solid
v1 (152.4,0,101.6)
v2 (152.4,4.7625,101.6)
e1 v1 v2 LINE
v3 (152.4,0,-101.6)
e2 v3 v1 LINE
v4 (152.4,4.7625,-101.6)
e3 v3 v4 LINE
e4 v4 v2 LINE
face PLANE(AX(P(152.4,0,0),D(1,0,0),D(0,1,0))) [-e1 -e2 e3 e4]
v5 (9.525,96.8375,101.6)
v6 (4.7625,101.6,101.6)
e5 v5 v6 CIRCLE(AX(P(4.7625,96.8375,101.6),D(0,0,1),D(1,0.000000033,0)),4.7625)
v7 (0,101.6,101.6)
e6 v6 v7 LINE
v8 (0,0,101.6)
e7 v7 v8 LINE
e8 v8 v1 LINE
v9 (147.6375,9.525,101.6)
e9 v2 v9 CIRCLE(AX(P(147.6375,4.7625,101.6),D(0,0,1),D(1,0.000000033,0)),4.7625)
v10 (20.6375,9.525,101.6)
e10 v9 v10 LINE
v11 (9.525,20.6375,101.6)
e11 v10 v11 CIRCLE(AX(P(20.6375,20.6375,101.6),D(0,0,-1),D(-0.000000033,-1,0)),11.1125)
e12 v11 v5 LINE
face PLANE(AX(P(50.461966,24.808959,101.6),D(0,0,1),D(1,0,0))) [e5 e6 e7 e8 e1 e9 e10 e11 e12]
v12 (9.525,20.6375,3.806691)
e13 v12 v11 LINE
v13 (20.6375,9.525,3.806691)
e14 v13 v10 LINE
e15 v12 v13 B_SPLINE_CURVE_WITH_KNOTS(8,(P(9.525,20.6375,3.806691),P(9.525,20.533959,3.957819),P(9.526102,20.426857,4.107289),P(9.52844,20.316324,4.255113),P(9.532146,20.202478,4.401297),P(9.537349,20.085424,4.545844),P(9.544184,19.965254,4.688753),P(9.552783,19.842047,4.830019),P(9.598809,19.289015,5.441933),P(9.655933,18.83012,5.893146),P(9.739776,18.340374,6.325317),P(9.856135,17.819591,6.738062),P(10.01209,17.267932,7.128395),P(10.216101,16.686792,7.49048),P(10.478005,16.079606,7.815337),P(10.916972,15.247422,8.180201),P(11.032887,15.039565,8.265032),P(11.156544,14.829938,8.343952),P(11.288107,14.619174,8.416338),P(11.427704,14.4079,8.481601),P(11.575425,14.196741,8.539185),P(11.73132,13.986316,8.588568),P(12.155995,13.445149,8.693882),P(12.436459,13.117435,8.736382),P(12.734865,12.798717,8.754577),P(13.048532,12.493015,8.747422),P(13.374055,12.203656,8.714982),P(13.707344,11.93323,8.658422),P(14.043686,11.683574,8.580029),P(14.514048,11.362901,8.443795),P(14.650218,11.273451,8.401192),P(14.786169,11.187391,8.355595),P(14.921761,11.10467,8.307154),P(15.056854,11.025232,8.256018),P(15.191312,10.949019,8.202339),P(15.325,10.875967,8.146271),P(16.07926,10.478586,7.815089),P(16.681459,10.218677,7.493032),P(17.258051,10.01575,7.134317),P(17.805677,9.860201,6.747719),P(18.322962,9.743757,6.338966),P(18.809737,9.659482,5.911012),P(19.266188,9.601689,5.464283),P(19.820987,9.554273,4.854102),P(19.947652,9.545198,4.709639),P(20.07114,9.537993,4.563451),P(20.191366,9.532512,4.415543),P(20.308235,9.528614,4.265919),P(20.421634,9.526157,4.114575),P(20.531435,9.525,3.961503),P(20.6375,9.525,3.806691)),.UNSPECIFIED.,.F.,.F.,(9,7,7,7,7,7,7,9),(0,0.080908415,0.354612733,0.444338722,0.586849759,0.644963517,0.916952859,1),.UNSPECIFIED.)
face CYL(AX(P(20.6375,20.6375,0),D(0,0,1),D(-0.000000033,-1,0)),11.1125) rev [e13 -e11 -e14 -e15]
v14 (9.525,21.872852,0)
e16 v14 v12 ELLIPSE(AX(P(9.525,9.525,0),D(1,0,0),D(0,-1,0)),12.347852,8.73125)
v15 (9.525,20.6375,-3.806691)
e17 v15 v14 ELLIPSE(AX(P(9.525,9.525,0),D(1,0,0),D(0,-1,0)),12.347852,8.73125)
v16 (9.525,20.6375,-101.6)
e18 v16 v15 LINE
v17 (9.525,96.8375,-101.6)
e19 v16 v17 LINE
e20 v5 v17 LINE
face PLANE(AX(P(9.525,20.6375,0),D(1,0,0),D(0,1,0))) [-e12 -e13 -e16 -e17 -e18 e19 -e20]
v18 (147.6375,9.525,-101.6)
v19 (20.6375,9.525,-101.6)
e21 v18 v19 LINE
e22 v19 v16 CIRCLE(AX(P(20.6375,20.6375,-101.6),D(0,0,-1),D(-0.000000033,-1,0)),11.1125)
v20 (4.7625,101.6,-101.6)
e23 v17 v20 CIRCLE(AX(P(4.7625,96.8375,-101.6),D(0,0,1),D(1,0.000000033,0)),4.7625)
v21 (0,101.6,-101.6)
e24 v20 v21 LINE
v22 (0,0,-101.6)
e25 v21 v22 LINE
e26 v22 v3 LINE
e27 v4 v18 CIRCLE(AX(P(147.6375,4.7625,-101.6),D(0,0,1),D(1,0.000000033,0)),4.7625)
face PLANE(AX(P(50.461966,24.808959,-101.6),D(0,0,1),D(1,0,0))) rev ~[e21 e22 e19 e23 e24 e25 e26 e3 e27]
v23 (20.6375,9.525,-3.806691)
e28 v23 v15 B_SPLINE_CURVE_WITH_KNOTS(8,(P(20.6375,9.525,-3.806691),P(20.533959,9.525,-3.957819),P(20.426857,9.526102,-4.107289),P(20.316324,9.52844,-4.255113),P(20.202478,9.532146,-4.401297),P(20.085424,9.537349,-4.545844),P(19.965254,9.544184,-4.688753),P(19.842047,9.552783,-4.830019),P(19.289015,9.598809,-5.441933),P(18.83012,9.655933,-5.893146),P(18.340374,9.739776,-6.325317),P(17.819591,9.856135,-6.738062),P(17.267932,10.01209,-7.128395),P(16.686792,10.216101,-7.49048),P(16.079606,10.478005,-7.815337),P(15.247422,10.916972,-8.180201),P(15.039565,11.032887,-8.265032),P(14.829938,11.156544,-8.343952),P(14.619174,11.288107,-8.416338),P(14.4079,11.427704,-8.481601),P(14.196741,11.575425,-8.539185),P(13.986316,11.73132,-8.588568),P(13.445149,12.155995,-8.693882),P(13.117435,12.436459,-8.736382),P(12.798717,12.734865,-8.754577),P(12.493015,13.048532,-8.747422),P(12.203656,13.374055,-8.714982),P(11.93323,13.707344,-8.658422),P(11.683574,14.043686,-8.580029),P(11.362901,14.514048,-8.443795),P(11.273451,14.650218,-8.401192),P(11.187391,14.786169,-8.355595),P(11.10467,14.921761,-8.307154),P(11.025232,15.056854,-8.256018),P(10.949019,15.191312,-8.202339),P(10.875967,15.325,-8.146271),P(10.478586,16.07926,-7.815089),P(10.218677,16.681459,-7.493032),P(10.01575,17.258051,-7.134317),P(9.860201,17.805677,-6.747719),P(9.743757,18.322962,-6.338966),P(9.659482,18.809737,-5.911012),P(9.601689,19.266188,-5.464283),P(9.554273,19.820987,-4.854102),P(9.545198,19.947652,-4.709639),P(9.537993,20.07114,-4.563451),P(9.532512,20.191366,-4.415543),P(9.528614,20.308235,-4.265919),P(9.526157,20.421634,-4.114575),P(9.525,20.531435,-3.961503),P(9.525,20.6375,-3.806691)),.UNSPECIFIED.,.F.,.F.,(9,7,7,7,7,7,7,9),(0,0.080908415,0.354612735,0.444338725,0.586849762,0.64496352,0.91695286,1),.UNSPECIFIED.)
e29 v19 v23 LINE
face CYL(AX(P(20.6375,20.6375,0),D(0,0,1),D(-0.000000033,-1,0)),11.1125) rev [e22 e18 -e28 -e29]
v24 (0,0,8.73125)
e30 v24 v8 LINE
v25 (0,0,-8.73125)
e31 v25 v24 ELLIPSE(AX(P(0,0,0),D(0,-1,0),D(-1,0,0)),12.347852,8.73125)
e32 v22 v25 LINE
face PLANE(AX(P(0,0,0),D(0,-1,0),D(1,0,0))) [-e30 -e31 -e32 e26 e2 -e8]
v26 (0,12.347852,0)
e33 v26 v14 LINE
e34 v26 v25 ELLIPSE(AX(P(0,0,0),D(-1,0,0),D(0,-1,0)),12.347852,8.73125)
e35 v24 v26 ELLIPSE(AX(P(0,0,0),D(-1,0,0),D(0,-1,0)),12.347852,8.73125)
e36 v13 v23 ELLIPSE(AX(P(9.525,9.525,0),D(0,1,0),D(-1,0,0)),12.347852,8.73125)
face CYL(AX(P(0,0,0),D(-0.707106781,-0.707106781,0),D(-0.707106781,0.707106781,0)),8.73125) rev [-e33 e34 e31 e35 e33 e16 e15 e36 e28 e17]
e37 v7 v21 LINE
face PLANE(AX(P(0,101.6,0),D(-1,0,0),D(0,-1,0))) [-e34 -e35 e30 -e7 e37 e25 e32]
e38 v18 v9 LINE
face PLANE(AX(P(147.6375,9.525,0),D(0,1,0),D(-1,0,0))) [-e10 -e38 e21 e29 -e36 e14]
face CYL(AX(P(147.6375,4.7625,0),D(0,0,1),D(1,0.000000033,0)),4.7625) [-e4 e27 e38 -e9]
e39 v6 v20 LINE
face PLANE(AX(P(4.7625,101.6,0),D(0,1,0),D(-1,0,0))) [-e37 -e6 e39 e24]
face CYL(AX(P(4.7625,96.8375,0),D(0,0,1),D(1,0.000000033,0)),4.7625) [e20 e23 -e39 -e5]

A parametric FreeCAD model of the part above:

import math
import FreeCAD as App
import Part
import Sketcher
Q = App.Units.Quantity

doc = App.newDocument("Part")
params = doc.addObject("Spreadsheet::Sheet", "Params")
for row, (alias, value) in enumerate([
    ("sketch1_width", "6 in"),
    ("sketch1_width2", "5 in"),
    ("sketch1_height", "4 in"),
    ("sketch1_radius", "0.1875 in"),
    ("sketch1_radius2", "0.4375 in"),
    ("pad1_length", "8 in"),
    ("sketch2_diameter", "0.6875 in"),
    ("pocket1_length", "1 in"),
], start=1):
    params.set(f"A{row}", alias)
    params.set(f"B{row}", "=" + value)
    params.setAlias(f"B{row}", alias)

body = doc.addObject("PartDesign::Body", "Body")

# Sketch on XY plane
sketch1 = body.newObject("Sketcher::SketchObject", "Sketch")
sketch1.AttachmentSupport = (doc.getObject("XY_Plane"), [""])
sketch1.MapMode = "FlatFace"
sketch1.addGeometry(Part.LineSegment(App.Vector(0, 101.6, 0), App.Vector(0, 0, 0)), False)
sketch1.addGeometry(Part.LineSegment(App.Vector(0, 0, 0), App.Vector(152.4, 0, 0)), False)
sketch1.addGeometry(Part.LineSegment(App.Vector(152.4, 0, 0), App.Vector(152.4, 4.7625, 0)), False)
sketch1.addGeometry(Part.ArcOfCircle(Part.Circle(App.Vector(147.6375, 4.7625, 0), App.Vector(0, 0, 1), 4.7625), math.radians(0.000002), math.radians(89.999998)), False)
sketch1.addGeometry(Part.LineSegment(App.Vector(147.6375, 9.525, 0), App.Vector(20.6375, 9.525, 0)), False)
sketch1.addGeometry(Part.ArcOfCircle(Part.Circle(App.Vector(20.6375, 20.6375, 0), App.Vector(0, 0, 1), 11.1125), math.radians(-179.999998), math.radians(-90.000002)), False)
sketch1.addGeometry(Part.LineSegment(App.Vector(9.525, 20.6375, 0), App.Vector(9.525, 96.8375, 0)), False)
sketch1.addGeometry(Part.ArcOfCircle(Part.Circle(App.Vector(4.7625, 96.8375, 0), App.Vector(0, 0, 1), 4.7625), math.radians(0.000002), math.radians(89.999998)), False)
sketch1.addGeometry(Part.LineSegment(App.Vector(4.7625, 101.6, 0), App.Vector(0, 101.6, 0)), False)
sketch1.addConstraint(Sketcher.Constraint("Coincident", 0, 2, 1, 1))
sketch1.addConstraint(Sketcher.Constraint("Coincident", 1, 2, 2, 1))
sketch1.addConstraint(Sketcher.Constraint("Tangent", 2, 2, 3, 1))
sketch1.addConstraint(Sketcher.Constraint("Tangent", 3, 2, 4, 1))
sketch1.addConstraint(Sketcher.Constraint("Tangent", 4, 2, 5, 2))
sketch1.addConstraint(Sketcher.Constraint("Tangent", 5, 1, 6, 1))
sketch1.addConstraint(Sketcher.Constraint("Tangent", 6, 2, 7, 1))
sketch1.addConstraint(Sketcher.Constraint("Tangent", 7, 2, 8, 1))
sketch1.addConstraint(Sketcher.Constraint("Coincident", 8, 2, 0, 1))
sketch1.addConstraint(Sketcher.Constraint("Vertical", 0))
sketch1.addConstraint(Sketcher.Constraint("Horizontal", 1))
sketch1.addConstraint(Sketcher.Constraint("Vertical", 2))
sketch1.addConstraint(Sketcher.Constraint("Horizontal", 4))
sketch1.addConstraint(Sketcher.Constraint("Vertical", 6))
sketch1.addConstraint(Sketcher.Constraint("Horizontal", 8))
sketch1.addConstraint(Sketcher.Constraint("Coincident", 0, 2, -1, 1))
sketch1.addConstraint(Sketcher.Constraint("Equal", 3, 7))
sketch1.addConstraint(Sketcher.Constraint("Equal", 8, 2))
sketch1.addConstraint(Sketcher.Constraint("DistanceX", 1, 1, 1, 2, Q("6 in")))
sketch1.addConstraint(Sketcher.Constraint("DistanceX", 4, 2, 4, 1, Q("5 in")))
sketch1.addConstraint(Sketcher.Constraint("DistanceY", 0, 2, 0, 1, Q("4 in")))
sketch1.addConstraint(Sketcher.Constraint("Radius", 3, Q("0.1875 in")))
sketch1.addConstraint(Sketcher.Constraint("Radius", 5, Q("0.4375 in")))
sketch1.setExpression("Constraints[18]", "Params.sketch1_width")
sketch1.setExpression("Constraints[19]", "Params.sketch1_width2")
sketch1.setExpression("Constraints[20]", "Params.sketch1_height")
sketch1.setExpression("Constraints[21]", "Params.sketch1_radius")
sketch1.setExpression("Constraints[22]", "Params.sketch1_radius2")
pad1 = body.newObject("PartDesign::Pad", "Pad")
pad1.Profile = sketch1
pad1.setExpression("Length", "Params.pad1_length")
pad1.Midplane = True

# Sketch on an angled plane
sketch2 = body.newObject("Sketcher::SketchObject", "Sketch001")
sketch2.Placement = App.Placement(App.Vector(0, 0, 0), App.Rotation(App.Vector(-0.707106781, 0.707106781, 0), App.Vector(0, 0, 0.999999999), App.Vector(0.707106781, 0.707106781, 0), "ZXY"))
sketch2.addGeometry(Part.Circle(App.Vector(0, 0, 0), App.Vector(0, 0, 1), 8.73125), False)
sketch2.addConstraint(Sketcher.Constraint("Coincident", 0, 3, -1, 1))
sketch2.addConstraint(Sketcher.Constraint("Diameter", 0, Q("0.6875 in")))
sketch2.setExpression("Constraints[1]", "Params.sketch2_diameter")
pocket1 = body.newObject("PartDesign::Pocket", "Pocket")
pocket1.Profile = sketch2
pocket1.setExpression("Length", "Params.pocket1_length")
pocket1.Reversed = True

doc.recompute()
